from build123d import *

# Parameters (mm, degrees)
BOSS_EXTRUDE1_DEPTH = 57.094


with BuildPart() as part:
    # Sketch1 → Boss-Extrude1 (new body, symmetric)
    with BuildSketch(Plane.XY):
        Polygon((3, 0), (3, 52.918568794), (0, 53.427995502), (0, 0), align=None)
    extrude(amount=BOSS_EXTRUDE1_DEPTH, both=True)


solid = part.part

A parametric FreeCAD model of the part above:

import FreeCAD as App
import Part
import Sketcher
from FreeCAD import Vector
Q = App.Units.Quantity

doc = App.newDocument("Part")
body = doc.addObject("PartDesign::Body", "Body")

# Sketch on XY plane
sketch1 = body.newObject("Sketcher::SketchObject", "Sketch")
sketch1.AttachmentSupport = (doc.getObject("XY_Plane"), [""])
sketch1.MapMode = "FlatFace"
sketch1.addGeometry([
    Part.LineSegment(Vector(3, 0, 0), Vector(3, 52.9, 0)),
    Part.LineSegment(Vector(3, 52.9, 0), Vector(0, 53.4, 0)),
    Part.LineSegment(Vector(0, 53.4, 0), Vector(0, 0, 0)),
    Part.LineSegment(Vector(0, 0, 0), Vector(3, 0, 0)),
], False)
sketch1.addConstraint([
    Sketcher.Constraint("Coincident", 0, 2, 1, 1),
    Sketcher.Constraint("Coincident", 1, 2, 2, 1),
    Sketcher.Constraint("Coincident", 2, 2, 3, 1),
    Sketcher.Constraint("Coincident", 3, 2, 0, 1),
    Sketcher.Constraint("Vertical", 0),
    Sketcher.Constraint("Vertical", 2),
    Sketcher.Constraint("Horizontal", 3),
    Sketcher.Constraint("Coincident", 2, 2, -1, 1),
    Sketcher.Constraint("DistanceX", 3, 1, 3, 2, Q("3 mm")),
    Sketcher.Constraint("DistanceY", 0, 1, 0, 2, Q("52.918569 mm")),
    Sketcher.Constraint("DistanceY", 2, 2, 2, 1, Q("53.427996 mm")),
])
pad1 = body.newObject("PartDesign::Pad", "Pad")
pad1.Profile = sketch1
pad1.Length = 114.188
pad1.Midplane = True

doc.recompute()
